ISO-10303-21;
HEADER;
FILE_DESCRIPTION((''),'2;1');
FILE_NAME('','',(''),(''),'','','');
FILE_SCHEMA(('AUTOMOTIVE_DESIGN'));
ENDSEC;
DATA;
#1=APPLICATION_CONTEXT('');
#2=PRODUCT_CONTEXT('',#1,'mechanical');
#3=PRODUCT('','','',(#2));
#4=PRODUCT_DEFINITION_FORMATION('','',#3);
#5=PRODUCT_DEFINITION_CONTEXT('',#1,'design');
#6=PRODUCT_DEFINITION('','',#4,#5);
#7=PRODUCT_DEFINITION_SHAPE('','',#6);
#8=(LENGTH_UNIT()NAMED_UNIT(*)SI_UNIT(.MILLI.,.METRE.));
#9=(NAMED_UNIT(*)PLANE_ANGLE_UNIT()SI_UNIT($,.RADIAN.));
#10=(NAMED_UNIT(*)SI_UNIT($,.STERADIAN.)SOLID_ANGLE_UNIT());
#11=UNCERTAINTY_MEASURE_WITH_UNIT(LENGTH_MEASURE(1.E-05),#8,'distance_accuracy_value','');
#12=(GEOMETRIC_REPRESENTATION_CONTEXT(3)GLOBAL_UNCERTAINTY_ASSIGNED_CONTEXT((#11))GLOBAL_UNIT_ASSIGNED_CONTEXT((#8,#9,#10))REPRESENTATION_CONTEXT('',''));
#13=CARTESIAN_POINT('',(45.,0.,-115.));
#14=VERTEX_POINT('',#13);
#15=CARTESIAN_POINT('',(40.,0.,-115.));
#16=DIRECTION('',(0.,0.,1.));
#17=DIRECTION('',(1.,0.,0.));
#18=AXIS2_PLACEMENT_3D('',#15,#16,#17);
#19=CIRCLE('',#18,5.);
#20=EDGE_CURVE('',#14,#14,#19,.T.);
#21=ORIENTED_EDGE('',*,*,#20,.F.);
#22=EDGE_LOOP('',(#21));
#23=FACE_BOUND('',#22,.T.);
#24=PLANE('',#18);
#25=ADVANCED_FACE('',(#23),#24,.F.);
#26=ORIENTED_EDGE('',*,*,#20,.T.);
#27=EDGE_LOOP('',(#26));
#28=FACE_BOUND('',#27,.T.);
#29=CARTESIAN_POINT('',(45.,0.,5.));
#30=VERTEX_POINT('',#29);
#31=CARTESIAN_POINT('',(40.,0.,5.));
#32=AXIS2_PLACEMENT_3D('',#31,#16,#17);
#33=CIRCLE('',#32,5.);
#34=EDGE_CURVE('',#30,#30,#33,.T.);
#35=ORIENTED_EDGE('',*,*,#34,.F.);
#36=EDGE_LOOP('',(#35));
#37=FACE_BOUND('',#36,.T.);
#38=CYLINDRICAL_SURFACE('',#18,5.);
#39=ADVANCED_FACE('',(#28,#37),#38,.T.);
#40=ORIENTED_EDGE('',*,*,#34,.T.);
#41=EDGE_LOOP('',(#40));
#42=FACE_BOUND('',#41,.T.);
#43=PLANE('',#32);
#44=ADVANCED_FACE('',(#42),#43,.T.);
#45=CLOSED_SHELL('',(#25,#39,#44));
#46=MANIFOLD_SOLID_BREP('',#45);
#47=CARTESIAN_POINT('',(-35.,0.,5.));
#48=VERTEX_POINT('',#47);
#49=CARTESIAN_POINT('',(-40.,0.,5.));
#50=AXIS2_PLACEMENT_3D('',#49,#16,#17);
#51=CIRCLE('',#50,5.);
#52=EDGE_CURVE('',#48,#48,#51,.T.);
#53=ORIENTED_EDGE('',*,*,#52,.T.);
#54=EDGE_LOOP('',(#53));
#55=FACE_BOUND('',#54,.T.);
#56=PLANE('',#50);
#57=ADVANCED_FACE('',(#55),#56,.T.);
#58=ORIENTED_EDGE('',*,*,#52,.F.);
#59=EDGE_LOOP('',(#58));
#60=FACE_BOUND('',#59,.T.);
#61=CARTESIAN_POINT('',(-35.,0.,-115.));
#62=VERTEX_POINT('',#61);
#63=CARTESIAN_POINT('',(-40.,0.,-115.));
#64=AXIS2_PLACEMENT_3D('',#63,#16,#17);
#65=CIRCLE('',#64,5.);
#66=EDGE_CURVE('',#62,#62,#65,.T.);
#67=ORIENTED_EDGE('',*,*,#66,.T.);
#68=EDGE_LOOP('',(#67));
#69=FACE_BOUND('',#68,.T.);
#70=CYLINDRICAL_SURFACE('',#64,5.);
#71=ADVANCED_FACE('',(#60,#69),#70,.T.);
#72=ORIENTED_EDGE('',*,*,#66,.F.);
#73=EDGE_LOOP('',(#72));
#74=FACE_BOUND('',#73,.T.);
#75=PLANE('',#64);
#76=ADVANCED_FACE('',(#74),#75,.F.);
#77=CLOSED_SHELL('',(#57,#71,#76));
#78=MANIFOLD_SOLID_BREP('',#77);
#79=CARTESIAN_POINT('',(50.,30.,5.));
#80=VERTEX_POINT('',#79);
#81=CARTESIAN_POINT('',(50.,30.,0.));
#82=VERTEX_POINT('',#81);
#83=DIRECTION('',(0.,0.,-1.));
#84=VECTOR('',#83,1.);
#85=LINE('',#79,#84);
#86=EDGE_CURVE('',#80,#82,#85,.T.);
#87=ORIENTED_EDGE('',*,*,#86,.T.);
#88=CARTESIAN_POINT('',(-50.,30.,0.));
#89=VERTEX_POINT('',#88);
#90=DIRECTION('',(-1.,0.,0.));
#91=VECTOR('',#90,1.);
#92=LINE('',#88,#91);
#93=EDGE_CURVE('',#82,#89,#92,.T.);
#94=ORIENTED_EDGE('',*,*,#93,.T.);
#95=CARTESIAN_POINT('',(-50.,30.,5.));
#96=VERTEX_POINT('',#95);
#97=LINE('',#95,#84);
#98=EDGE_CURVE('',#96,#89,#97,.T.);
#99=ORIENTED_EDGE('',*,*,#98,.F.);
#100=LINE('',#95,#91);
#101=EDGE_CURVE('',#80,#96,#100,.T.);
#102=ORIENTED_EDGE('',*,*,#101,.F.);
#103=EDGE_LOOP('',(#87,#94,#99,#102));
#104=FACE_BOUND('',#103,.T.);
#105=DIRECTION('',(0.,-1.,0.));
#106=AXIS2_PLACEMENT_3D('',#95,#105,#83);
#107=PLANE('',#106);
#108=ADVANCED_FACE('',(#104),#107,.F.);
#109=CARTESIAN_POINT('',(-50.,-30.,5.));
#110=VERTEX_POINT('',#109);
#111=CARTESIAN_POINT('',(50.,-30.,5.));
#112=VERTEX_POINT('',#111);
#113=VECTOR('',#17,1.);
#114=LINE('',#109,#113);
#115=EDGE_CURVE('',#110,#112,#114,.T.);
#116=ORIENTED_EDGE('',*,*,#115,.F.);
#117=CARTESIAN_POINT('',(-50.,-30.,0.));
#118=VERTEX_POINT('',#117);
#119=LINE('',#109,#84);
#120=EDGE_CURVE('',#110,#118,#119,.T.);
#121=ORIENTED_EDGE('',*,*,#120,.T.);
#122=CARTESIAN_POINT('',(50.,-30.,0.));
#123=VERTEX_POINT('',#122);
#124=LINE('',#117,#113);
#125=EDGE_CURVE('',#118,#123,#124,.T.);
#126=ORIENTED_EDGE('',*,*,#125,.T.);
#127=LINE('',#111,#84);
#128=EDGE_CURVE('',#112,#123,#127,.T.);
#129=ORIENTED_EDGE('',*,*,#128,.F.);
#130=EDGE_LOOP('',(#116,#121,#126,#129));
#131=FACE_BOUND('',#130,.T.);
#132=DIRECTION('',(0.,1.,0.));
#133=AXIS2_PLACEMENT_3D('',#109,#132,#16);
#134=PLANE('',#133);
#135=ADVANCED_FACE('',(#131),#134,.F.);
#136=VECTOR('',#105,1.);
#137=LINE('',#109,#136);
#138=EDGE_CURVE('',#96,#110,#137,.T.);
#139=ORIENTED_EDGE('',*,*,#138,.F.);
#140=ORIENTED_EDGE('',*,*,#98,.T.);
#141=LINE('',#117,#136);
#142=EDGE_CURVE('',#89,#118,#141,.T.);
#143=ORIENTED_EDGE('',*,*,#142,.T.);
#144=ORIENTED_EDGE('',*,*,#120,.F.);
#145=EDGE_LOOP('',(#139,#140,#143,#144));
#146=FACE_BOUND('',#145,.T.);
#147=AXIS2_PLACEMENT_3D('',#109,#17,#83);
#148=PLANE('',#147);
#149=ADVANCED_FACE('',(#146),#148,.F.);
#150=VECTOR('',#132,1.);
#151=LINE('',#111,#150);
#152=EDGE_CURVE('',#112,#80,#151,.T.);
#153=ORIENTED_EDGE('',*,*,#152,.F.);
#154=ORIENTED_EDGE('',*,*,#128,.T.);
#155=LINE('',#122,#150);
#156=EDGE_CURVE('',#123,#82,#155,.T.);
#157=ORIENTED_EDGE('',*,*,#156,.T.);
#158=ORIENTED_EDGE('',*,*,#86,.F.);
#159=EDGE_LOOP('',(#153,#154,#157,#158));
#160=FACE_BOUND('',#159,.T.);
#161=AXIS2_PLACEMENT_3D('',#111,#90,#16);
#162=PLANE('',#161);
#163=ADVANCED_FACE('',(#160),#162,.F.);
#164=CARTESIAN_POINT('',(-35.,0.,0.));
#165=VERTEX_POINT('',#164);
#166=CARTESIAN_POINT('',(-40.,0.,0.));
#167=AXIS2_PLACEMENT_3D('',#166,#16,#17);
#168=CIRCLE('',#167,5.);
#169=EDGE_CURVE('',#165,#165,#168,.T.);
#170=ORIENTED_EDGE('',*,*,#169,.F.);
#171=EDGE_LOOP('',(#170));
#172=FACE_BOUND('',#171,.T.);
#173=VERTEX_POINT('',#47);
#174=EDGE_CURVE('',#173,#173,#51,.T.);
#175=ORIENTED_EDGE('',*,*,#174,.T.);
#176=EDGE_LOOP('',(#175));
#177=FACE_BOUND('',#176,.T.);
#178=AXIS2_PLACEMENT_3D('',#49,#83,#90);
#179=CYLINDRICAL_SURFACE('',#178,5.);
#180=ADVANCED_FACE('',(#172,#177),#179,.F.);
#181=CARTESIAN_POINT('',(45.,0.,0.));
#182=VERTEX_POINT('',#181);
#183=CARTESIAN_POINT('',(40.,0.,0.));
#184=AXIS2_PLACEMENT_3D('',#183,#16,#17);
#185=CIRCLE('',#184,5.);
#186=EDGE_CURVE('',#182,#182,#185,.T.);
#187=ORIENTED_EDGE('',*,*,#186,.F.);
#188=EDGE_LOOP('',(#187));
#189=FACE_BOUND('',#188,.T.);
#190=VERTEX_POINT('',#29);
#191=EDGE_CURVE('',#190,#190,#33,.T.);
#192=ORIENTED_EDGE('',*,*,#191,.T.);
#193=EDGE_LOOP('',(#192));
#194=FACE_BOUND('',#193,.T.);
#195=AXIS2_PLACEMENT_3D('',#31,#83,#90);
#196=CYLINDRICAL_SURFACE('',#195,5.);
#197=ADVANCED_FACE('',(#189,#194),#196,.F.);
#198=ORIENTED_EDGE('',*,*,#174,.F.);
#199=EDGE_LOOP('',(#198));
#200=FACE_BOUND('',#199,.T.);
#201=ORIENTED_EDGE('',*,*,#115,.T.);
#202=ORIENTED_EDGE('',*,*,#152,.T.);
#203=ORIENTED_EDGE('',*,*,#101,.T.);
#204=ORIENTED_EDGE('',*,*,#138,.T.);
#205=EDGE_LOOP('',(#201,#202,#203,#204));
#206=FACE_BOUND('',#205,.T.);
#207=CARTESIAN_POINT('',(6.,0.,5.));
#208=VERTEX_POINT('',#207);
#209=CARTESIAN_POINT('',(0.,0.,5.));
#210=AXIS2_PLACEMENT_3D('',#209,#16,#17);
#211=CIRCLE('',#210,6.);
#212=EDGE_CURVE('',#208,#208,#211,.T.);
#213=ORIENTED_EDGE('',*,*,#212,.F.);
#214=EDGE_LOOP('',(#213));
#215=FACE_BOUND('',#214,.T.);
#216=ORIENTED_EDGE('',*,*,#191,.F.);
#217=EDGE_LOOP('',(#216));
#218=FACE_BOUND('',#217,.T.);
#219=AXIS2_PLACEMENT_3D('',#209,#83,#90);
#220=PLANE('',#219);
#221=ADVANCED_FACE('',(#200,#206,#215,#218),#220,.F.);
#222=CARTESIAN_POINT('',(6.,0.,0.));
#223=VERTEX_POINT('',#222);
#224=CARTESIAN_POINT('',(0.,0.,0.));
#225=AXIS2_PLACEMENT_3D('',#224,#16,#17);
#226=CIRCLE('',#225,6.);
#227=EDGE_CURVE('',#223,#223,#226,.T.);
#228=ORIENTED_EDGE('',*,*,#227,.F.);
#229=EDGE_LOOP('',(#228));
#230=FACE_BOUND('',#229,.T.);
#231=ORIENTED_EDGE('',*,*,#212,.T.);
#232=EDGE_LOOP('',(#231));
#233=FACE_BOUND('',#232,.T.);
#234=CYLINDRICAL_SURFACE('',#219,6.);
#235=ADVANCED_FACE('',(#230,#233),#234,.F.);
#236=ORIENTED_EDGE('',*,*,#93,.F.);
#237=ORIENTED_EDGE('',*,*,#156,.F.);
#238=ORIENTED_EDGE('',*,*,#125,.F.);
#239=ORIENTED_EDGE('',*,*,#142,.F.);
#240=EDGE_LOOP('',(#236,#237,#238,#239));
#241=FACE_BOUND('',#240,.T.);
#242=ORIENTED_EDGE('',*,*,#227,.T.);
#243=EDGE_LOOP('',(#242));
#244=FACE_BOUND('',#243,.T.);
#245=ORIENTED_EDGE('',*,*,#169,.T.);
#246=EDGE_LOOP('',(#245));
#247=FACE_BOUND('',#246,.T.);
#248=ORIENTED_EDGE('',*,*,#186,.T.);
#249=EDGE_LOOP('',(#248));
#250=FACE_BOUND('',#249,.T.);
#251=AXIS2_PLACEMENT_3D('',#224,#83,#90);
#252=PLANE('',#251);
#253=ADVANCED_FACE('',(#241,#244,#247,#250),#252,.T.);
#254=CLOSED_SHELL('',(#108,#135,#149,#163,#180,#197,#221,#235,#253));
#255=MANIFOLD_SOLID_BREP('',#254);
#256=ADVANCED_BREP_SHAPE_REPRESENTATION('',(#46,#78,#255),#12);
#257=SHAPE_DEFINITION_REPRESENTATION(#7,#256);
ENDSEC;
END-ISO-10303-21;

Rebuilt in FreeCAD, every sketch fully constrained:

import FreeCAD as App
import Part
import Sketcher
Q = App.Units.Quantity


def add_polygon(sketch, points):
    """Adds a closed chain of lines whose ends are joined by coincident constraints."""
    first, n = sketch.GeometryCount, len(points)
    for a, b in zip(points, points[1:] + points[:1]):
        sketch.addGeometry(Part.LineSegment(App.Vector(*a, 0), App.Vector(*b, 0)), False)
    for i in range(n):
        sketch.addConstraint(Sketcher.Constraint("Coincident", first + i, 2, first + (i + 1) % n, 1))

doc = App.newDocument("Part")
body = doc.addObject("PartDesign::Body", "Body")

sketch1 = body.newObject("Sketcher::SketchObject", "Sketch")
sketch1.AttachmentSupport = (doc.getObject("XY_Plane"), [""])
sketch1.MapMode = "FlatFace"
add_polygon(sketch1, [(-50, 30), (-50, -30), (50, -30), (50, 30)])
sketch1.addGeometry(Part.Circle(App.Vector(-40, 0, 0), App.Vector(0, 0, 1), 5), False)
sketch1.addGeometry(Part.Circle(App.Vector(0, 0, 0), App.Vector(0, 0, 1), 6), False)
sketch1.addGeometry(Part.Circle(App.Vector(40, 0, 0), App.Vector(0, 0, 1), 5), False)
sketch1.addConstraint(Sketcher.Constraint("Vertical", 0))
sketch1.addConstraint(Sketcher.Constraint("Horizontal", 1))
sketch1.addConstraint(Sketcher.Constraint("Vertical", 2))
sketch1.addConstraint(Sketcher.Constraint("Horizontal", 3))
sketch1.addConstraint(Sketcher.Constraint("Coincident", 5, 3, -1, 1))
sketch1.addConstraint(Sketcher.Constraint("Equal", 4, 6))
sketch1.addConstraint(Sketcher.Constraint("Symmetric", 4, 3, 6, 3, -1, 1))
sketch1.addConstraint(Sketcher.Constraint("Symmetric", 0, 2, 2, 2, -1, 1))
sketch1.addConstraint(Sketcher.Constraint("PointOnObject", 4, 3, -1))
sketch1.addConstraint(Sketcher.Constraint("Diameter", 4, Q("10 mm")))
sketch1.addConstraint(Sketcher.Constraint("Diameter", 5, Q("12 mm")))
sketch1.addConstraint(Sketcher.Constraint("DistanceX", 1, 1, 1, 2, Q("100 mm")))
sketch1.addConstraint(Sketcher.Constraint("DistanceY", 0, 2, 0, 1, Q("60 mm")))
sketch1.addConstraint(Sketcher.Constraint("DistanceX", 4, 3, -1, 1, Q("40 mm")))
pad1 = body.newObject("PartDesign::Pad", "Pad")
pad1.Profile = sketch1
pad1.Length = 5
body2 = doc.addObject("PartDesign::Body", "Body001")

sketch2 = body2.newObject("Sketcher::SketchObject", "Sketch001")
sketch2.AttachmentSupport = (doc.getObject("XY_Plane001"), [""])
sketch2.MapMode = "FlatFace"
sketch2.AttachmentOffset = App.Placement(App.Vector(0, 0, 5), App.Rotation())
sketch2.addGeometry(Part.Circle(App.Vector(40, 0, 0), App.Vector(0, 0, 1), 5), False)
sketch2.addConstraint(Sketcher.Constraint("PointOnObject", 0, 3, -1))
sketch2.addConstraint(Sketcher.Constraint("Diameter", 0, Q("10 mm")))
sketch2.addConstraint(Sketcher.Constraint("DistanceX", -1, 1, 0, 3, Q("40 mm")))
pad2 = body2.newObject("PartDesign::Pad", "Pad001")
pad2.Profile = sketch2
pad2.Length = 120
pad2.Reversed = True
body3 = doc.addObject("PartDesign::Body", "Body002")

sketch3 = body3.newObject("Sketcher::SketchObject", "Sketch002")
sketch3.AttachmentSupport = (doc.getObject("XY_Plane002"), [""])
sketch3.MapMode = "FlatFace"
sketch3.AttachmentOffset = App.Placement(App.Vector(0, 0, 5), App.Rotation())
sketch3.addGeometry(Part.Circle(App.Vector(-40, 0, 0), App.Vector(0, 0, 1), 5), False)
sketch3.addConstraint(Sketcher.Constraint("PointOnObject", 0, 3, -1))
sketch3.addConstraint(Sketcher.Constraint("Diameter", 0, Q("10 mm")))
sketch3.addConstraint(Sketcher.Constraint("DistanceX", 0, 3, -1, 1, Q("40 mm")))
pad3 = body3.newObject("PartDesign::Pad", "Pad002")
pad3.Profile = sketch3
pad3.Length = 120
pad3.Reversed = True

doc.recompute()
